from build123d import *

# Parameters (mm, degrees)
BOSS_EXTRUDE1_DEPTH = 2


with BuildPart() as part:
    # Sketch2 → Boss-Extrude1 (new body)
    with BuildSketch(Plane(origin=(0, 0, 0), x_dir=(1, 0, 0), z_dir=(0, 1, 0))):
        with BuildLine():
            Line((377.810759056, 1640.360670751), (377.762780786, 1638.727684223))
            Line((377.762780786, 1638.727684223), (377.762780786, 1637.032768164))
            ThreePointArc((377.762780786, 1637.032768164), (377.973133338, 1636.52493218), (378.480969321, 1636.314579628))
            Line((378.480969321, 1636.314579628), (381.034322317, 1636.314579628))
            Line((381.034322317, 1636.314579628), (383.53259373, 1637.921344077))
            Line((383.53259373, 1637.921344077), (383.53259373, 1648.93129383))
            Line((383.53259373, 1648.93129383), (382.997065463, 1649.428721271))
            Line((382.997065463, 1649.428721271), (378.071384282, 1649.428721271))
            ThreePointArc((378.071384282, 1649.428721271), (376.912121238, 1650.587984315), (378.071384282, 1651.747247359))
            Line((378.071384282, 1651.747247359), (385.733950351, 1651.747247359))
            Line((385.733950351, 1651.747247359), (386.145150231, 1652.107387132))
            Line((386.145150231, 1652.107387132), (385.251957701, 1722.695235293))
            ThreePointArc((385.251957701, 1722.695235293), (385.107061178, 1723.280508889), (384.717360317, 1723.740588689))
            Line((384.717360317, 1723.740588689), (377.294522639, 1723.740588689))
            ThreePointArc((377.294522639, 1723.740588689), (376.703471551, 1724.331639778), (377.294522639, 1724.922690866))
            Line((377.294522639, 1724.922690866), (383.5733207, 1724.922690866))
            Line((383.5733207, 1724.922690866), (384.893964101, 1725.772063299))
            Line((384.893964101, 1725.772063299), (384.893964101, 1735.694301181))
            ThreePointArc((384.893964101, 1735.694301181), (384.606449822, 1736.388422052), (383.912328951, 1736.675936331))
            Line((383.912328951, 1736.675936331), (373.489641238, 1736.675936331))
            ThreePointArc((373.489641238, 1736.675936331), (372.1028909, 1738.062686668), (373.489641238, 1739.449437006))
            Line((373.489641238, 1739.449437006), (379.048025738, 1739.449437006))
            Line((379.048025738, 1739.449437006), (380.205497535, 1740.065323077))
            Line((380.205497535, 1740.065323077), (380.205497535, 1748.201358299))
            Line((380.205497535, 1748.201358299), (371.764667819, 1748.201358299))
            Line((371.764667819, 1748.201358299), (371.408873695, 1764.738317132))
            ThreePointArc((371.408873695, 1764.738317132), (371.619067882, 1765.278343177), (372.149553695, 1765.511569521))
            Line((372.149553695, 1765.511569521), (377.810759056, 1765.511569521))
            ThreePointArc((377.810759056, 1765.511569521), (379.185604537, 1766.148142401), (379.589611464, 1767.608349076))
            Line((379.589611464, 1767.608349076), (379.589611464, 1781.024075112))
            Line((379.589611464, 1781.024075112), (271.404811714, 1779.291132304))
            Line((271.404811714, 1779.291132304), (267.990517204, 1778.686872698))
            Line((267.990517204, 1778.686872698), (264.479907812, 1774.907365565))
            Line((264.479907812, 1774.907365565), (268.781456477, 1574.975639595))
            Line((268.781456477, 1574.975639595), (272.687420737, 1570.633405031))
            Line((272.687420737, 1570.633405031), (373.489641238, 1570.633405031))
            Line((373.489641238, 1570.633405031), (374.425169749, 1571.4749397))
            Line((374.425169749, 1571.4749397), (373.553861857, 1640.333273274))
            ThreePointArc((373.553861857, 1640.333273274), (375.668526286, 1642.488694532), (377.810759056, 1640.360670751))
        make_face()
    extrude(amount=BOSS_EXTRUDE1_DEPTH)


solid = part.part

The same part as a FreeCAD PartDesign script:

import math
import FreeCAD as App
import Part
import Sketcher

V = App.Vector

doc = App.newDocument("Part")
body = doc.addObject("PartDesign::Body", "Body")

# Sketch on XZ plane
sketch1 = body.newObject("Sketcher::SketchObject", "Sketch")
sketch1.AttachmentSupport = (doc.getObject("XZ_Plane"), [""])
sketch1.MapMode = "FlatFace"
sketch1.addGeometry(Part.LineSegment(V(377.810759, -1640.360671, 0), V(377.762781, -1638.727684, 0)), False)
sketch1.addGeometry(Part.LineSegment(V(377.762781, -1638.727684, 0), V(377.762781, -1637.032768, 0)), False)
sketch1.addGeometry(Part.ArcOfCircle(Part.Circle(V(378.480969, -1637.032768, 0), V(0, 0, 1), 0.718189), math.radians(90), math.radians(180)), False)
sketch1.addGeometry(Part.LineSegment(V(378.480969, -1636.31458, 0), V(381.034322, -1636.31458, 0)), False)
sketch1.addGeometry(Part.LineSegment(V(381.034322, -1636.31458, 0), V(383.532594, -1637.921344, 0)), False)
sketch1.addGeometry(Part.LineSegment(V(383.532594, -1637.921344, 0), V(383.532594, -1648.931294, 0)), False)
sketch1.addGeometry(Part.LineSegment(V(383.532594, -1648.931294, 0), V(382.997065, -1649.428721, 0)), False)
sketch1.addGeometry(Part.LineSegment(V(382.997065, -1649.428721, 0), V(378.071384, -1649.428721, 0)), False)
sketch1.addGeometry(Part.ArcOfCircle(Part.Circle(V(378.071384, -1650.587984, 0), V(0, 0, 1), 1.159263), math.radians(90), math.radians(270)), False)
sketch1.addGeometry(Part.LineSegment(V(378.071384, -1651.747247, 0), V(385.73395, -1651.747247, 0)), False)
sketch1.addGeometry(Part.LineSegment(V(385.73395, -1651.747247, 0), V(386.14515, -1652.107387, 0)), False)
sketch1.addGeometry(Part.LineSegment(V(386.14515, -1652.107387, 0), V(385.251958, -1722.695235, 0)), False)
sketch1.addGeometry(Part.ArcOfCircle(Part.Circle(V(383.929904, -1722.678507, 0), V(0, 0, 1), 1.32216), math.radians(-53.445762), math.radians(-0.724961)), False)
sketch1.addGeometry(Part.LineSegment(V(384.71736, -1723.740589, 0), V(377.294523, -1723.740589, 0)), False)
sketch1.addGeometry(Part.ArcOfCircle(Part.Circle(V(377.294523, -1724.33164, 0), V(0, 0, 1), 0.591051), math.radians(90), math.radians(270)), False)
sketch1.addGeometry(Part.LineSegment(V(377.294523, -1724.922691, 0), V(383.573321, -1724.922691, 0)), False)
sketch1.addGeometry(Part.LineSegment(V(383.573321, -1724.922691, 0), V(384.893964, -1725.772063, 0)), False)
sketch1.addGeometry(Part.LineSegment(V(384.893964, -1725.772063, 0), V(384.893964, -1735.694301, 0)), False)
sketch1.addGeometry(Part.ArcOfCircle(Part.Circle(V(383.912329, -1735.694301, 0), V(0, 0, 1), 0.981635), math.radians(-90), math.radians(0)), False)
sketch1.addGeometry(Part.LineSegment(V(383.912329, -1736.675936, 0), V(373.489641, -1736.675936, 0)), False)
sketch1.addGeometry(Part.ArcOfCircle(Part.Circle(V(373.489641, -1738.062687, 0), V(0, 0, 1), 1.38675), math.radians(90), math.radians(270)), False)
sketch1.addGeometry(Part.LineSegment(V(373.489641, -1739.449437, 0), V(379.048026, -1739.449437, 0)), False)
sketch1.addGeometry(Part.LineSegment(V(379.048026, -1739.449437, 0), V(380.205498, -1740.065323, 0)), False)
sketch1.addGeometry(Part.LineSegment(V(380.205498, -1740.065323, 0), V(380.205498, -1748.201358, 0)), False)
sketch1.addGeometry(Part.LineSegment(V(380.205498, -1748.201358, 0), V(371.764668, -1748.201358, 0)), False)
sketch1.addGeometry(Part.LineSegment(V(371.764668, -1748.201358, 0), V(371.408874, -1764.738317, 0)), False)
sketch1.addGeometry(Part.ArcOfCircle(Part.Circle(V(372.16584, -1764.754603, 0), V(0, 0, 1), 0.757141), math.radians(178.767466), math.radians(268.767466)), False)
sketch1.addGeometry(Part.LineSegment(V(372.149554, -1765.51157, 0), V(377.810759, -1765.51157, 0)), False)
sketch1.addGeometry(Part.ArcOfCircle(Part.Circle(V(377.810759, -1767.314525, 0), V(0, 0, 1), 1.802955), math.radians(-9.379212), math.radians(90)), False)
sketch1.addGeometry(Part.LineSegment(V(379.589611, -1767.608349, 0), V(379.589611, -1781.024075, 0)), False)
sketch1.addGeometry(Part.LineSegment(V(379.589611, -1781.024075, 0), V(271.404812, -1779.291132, 0)), False)
sketch1.addGeometry(Part.LineSegment(V(271.404812, -1779.291132, 0), V(267.990517, -1778.686873, 0)), False)
sketch1.addGeometry(Part.LineSegment(V(267.990517, -1778.686873, 0), V(264.479908, -1774.907366, 0)), False)
sketch1.addGeometry(Part.LineSegment(V(264.479908, -1774.907366, 0), V(268.781456, -1574.97564, 0)), False)
sketch1.addGeometry(Part.LineSegment(V(268.781456, -1574.97564, 0), V(272.687421, -1570.633405, 0)), False)
sketch1.addGeometry(Part.LineSegment(V(272.687421, -1570.633405, 0), V(373.489641, -1570.633405, 0)), False)
sketch1.addGeometry(Part.LineSegment(V(373.489641, -1570.633405, 0), V(374.42517, -1571.47494, 0)), False)
sketch1.addGeometry(Part.LineSegment(V(374.42517, -1571.47494, 0), V(373.553862, -1640.333273, 0)), False)
sketch1.addGeometry(Part.ArcOfCircle(Part.Circle(V(375.682225, -1640.360205, 0), V(0, 0, 1), 2.128534), math.radians(179.275039), math.radians(359.987457)), False)
sketch1.addConstraint(Sketcher.Constraint("Coincident", 0, 2, 1, 1))
sketch1.addConstraint(Sketcher.Constraint("Tangent", 1, 2, 2, 2))
sketch1.addConstraint(Sketcher.Constraint("Tangent", 2, 1, 3, 1))
sketch1.addConstraint(Sketcher.Constraint("Coincident", 3, 2, 4, 1))
sketch1.addConstraint(Sketcher.Constraint("Coincident", 4, 2, 5, 1))
sketch1.addConstraint(Sketcher.Constraint("Coincident", 5, 2, 6, 1))
sketch1.addConstraint(Sketcher.Constraint("Coincident", 6, 2, 7, 1))
sketch1.addConstraint(Sketcher.Constraint("Tangent", 7, 2, 8, 1))
sketch1.addConstraint(Sketcher.Constraint("Tangent", 8, 2, 9, 1))
sketch1.addConstraint(Sketcher.Constraint("Coincident", 9, 2, 10, 1))
sketch1.addConstraint(Sketcher.Constraint("Coincident", 10, 2, 11, 1))
sketch1.addConstraint(Sketcher.Constraint("Tangent", 11, 2, 12, 2))
sketch1.addConstraint(Sketcher.Constraint("Coincident", 12, 1, 13, 1))
sketch1.addConstraint(Sketcher.Constraint("Tangent", 13, 2, 14, 1))
sketch1.addConstraint(Sketcher.Constraint("Tangent", 14, 2, 15, 1))
sketch1.addConstraint(Sketcher.Constraint("Coincident", 15, 2, 16, 1))
sketch1.addConstraint(Sketcher.Constraint("Coincident", 16, 2, 17, 1))
sketch1.addConstraint(Sketcher.Constraint("Tangent", 17, 2, 18, 2))
sketch1.addConstraint(Sketcher.Constraint("Tangent", 18, 1, 19, 1))
sketch1.addConstraint(Sketcher.Constraint("Tangent", 19, 2, 20, 1))
sketch1.addConstraint(Sketcher.Constraint("Tangent", 20, 2, 21, 1))
sketch1.addConstraint(Sketcher.Constraint("Coincident", 21, 2, 22, 1))
sketch1.addConstraint(Sketcher.Constraint("Coincident", 22, 2, 23, 1))
sketch1.addConstraint(Sketcher.Constraint("Coincident", 23, 2, 24, 1))
sketch1.addConstraint(Sketcher.Constraint("Coincident", 24, 2, 25, 1))
sketch1.addConstraint(Sketcher.Constraint("Tangent", 25, 2, 26, 1))
sketch1.addConstraint(Sketcher.Constraint("Coincident", 26, 2, 27, 1))
sketch1.addConstraint(Sketcher.Constraint("Tangent", 27, 2, 28, 2))
sketch1.addConstraint(Sketcher.Constraint("Coincident", 28, 1, 29, 1))
sketch1.addConstraint(Sketcher.Constraint("Coincident", 29, 2, 30, 1))
sketch1.addConstraint(Sketcher.Constraint("Coincident", 30, 2, 31, 1))
sketch1.addConstraint(Sketcher.Constraint("Coincident", 31, 2, 32, 1))
sketch1.addConstraint(Sketcher.Constraint("Coincident", 32, 2, 33, 1))
sketch1.addConstraint(Sketcher.Constraint("Coincident", 33, 2, 34, 1))
sketch1.addConstraint(Sketcher.Constraint("Coincident", 34, 2, 35, 1))
sketch1.addConstraint(Sketcher.Constraint("Coincident", 35, 2, 36, 1))
sketch1.addConstraint(Sketcher.Constraint("Coincident", 36, 2, 37, 1))
sketch1.addConstraint(Sketcher.Constraint("Tangent", 37, 2, 38, 1))
sketch1.addConstraint(Sketcher.Constraint("Coincident", 38, 2, 0, 1))
sketch1.addConstraint(Sketcher.Constraint("Vertical", 1))
sketch1.addConstraint(Sketcher.Constraint("Horizontal", 3))
sketch1.addConstraint(Sketcher.Constraint("Vertical", 5))
sketch1.addConstraint(Sketcher.Constraint("Horizontal", 7))
sketch1.addConstraint(Sketcher.Constraint("Horizontal", 9))
sketch1.addConstraint(Sketcher.Constraint("Horizontal", 13))
sketch1.addConstraint(Sketcher.Constraint("Horizontal", 15))
sketch1.addConstraint(Sketcher.Constraint("Vertical", 17))
sketch1.addConstraint(Sketcher.Constraint("Horizontal", 19))
sketch1.addConstraint(Sketcher.Constraint("Horizontal", 21))
sketch1.addConstraint(Sketcher.Constraint("Vertical", 23))
sketch1.addConstraint(Sketcher.Constraint("Horizontal", 24))
sketch1.addConstraint(Sketcher.Constraint("Horizontal", 27))
sketch1.addConstraint(Sketcher.Constraint("Vertical", 29))
sketch1.addConstraint(Sketcher.Constraint("Horizontal", 35))
sketch1.addConstraint(Sketcher.Constraint("Parallel", 4, 16))
sketch1.addConstraint(Sketcher.Constraint("Perpendicular", 6, 32))
sketch1.addConstraint(Sketcher.Constraint("Parallel", 25, 33))
sketch1.addConstraint(Sketcher.Constraint("Perpendicular", 34, 36))
sketch1.addConstraint(Sketcher.Constraint("Parallel", 11, 37))
sketch1.addConstraint(Sketcher.Constraint("Vertical", 20, 2, 35, 2))
sketch1.addConstraint(Sketcher.Constraint("Vertical", 27, 2, 38, 2))
sketch1.addConstraint(Sketcher.Constraint("Radius", 2, 0.718189))
sketch1.addConstraint(Sketcher.Constraint("Radius", 12, 1.32216))
sketch1.addConstraint(Sketcher.Constraint("Radius", 14, 0.591051))
sketch1.addConstraint(Sketcher.Constraint("Radius", 20, 1.38675))
sketch1.addConstraint(Sketcher.Constraint("Radius", 26, 0.757141))
sketch1.addConstraint(Sketcher.Constraint("DistanceX", 15, 1, 15, 2, 6.278798))
sketch1.addConstraint(Sketcher.Constraint("Radius", 8, 1.159263))
sketch1.addConstraint(Sketcher.Constraint("Radius", 18, 0.981635))
sketch1.addConstraint(Sketcher.Constraint("Radius", 28, 1.802955))
sketch1.addConstraint(Sketcher.Constraint("Radius", 38, 2.128534))
sketch1.addConstraint(Sketcher.Constraint("Distance", 11, 70.593499))
sketch1.addConstraint(Sketcher.Constraint("Distance", 16, 1.570201))
sketch1.addConstraint(Sketcher.Constraint("DistanceX", 7, 2, 7, 1, 4.925681))
sketch1.addConstraint(Sketcher.Constraint("DistanceX", 24, 2, 24, 1, 8.44083))
sketch1.addConstraint(Sketcher.Constraint("DistanceX", 35, 1, 35, 2, 100.802221))
sketch1.addConstraint(Sketcher.Constraint("DistanceY", 5, 2, 5, 1, 11.00995))
sketch1.addConstraint(Sketcher.Constraint("DistanceY", 18, 3, -1, 1, 1735.694301))
sketch1.addConstraint(Sketcher.Constraint("DistanceX", 26, 3, 20, 3, 1.323801))
sketch1.addConstraint(Sketcher.Constraint("DistanceY", 12, 3, 38, 3, 82.318302))
sketch1.addConstraint(Sketcher.Constraint("DistanceY", 8, 3, 0, 2, 11.8603))
sketch1.addConstraint(Sketcher.Constraint("DistanceX", 9, 2, 10, 2, 0.4112))
sketch1.addConstraint(Sketcher.Constraint("DistanceY", 38, 3, 34, 2, 69.7268))
sketch1.addConstraint(Sketcher.Constraint("DistanceX", 36, 2, 2, 1, 4.0558))
sketch1.addConstraint(Sketcher.Constraint("Distance", 0, 1.633691))
sketch1.addConstraint(Sketcher.Constraint("Distance", 30, 108.198678))
sketch1.addConstraint(Sketcher.Constraint("Distance", 34, 5.84051))
sketch1.addConstraint(Sketcher.Constraint("Distance", 36, 1.25833))
sketch1.addConstraint(Sketcher.Constraint("DistanceX", 3, 1, 3, 2, 2.553353))
sketch1.addConstraint(Sketcher.Constraint("DistanceX", 9, 1, 9, 2, 7.662566))
sketch1.addConstraint(Sketcher.Constraint("DistanceX", 13, 2, 13, 1, 7.422838))
sketch1.addConstraint(Sketcher.Constraint("DistanceX", 19, 2, 19, 1, 10.422688))
sketch1.addConstraint(Sketcher.Constraint("DistanceX", 21, 1, 21, 2, 5.558384))
sketch1.addConstraint(Sketcher.Constraint("DistanceX", 27, 1, 27, 2, 5.661205))
sketch1.addConstraint(Sketcher.Constraint("DistanceY", 1, 1, 1, 2, 1.694916))
sketch1.addConstraint(Sketcher.Constraint("DistanceY", 17, 2, 17, 1, 9.922238))
sketch1.addConstraint(Sketcher.Constraint("DistanceY", 23, 2, 23, 1, 8.136035))
sketch1.addConstraint(Sketcher.Constraint("DistanceY", 29, 2, 29, 1, 13.415726))
sketch1.addConstraint(Sketcher.Constraint("DistanceX", -1, 1, 2, 3, 378.480969))
sketch1.addConstraint(Sketcher.Constraint("DistanceY", 2, 3, -1, 1, 1637.032768))
sketch1.addConstraint(Sketcher.Constraint("DistanceY", 14, 3, -1, 1, 1724.33164))
sketch1.addConstraint(Sketcher.Constraint("DistanceX", -1, 1, 18, 3, 383.912329))
sketch1.addConstraint(Sketcher.Constraint("DistanceX", -1, 1, 28, 3, 377.810759))
sketch1.addConstraint(Sketcher.Constraint("DistanceX", -1, 1, 9, 2, 385.73395))
sketch1.addConstraint(Sketcher.Constraint("DistanceY", 23, 2, -1, 1, 1748.201358))
sketch1.addConstraint(Sketcher.Constraint("DistanceY", 26, 2, -1, 1, 1765.51157))
sketch1.addConstraint(Sketcher.Constraint("DistanceX", -1, 1, 28, 1, 379.589611))
sketch1.addConstraint(Sketcher.Constraint("DistanceX", -1, 1, 30, 2, 271.404812))
sketch1.addConstraint(Sketcher.Constraint("DistanceX", 3, 2, 4, 2, 2.498271))
sketch1.addConstraint(Sketcher.Constraint("DistanceX", 21, 2, 22, 2, 1.157472))
sketch1.addConstraint(Sketcher.Constraint("DistanceY", 30, 2, 31, 2, 0.60426))
sketch1.addConstraint(Sketcher.Constraint("DistanceX", 31, 2, 24, 2, 103.774151))
pad1 = body.newObject("PartDesign::Pad", "Pad")
pad1.Profile = sketch1
pad1.Length = 2
pad1.Reversed = True

doc.recompute()
